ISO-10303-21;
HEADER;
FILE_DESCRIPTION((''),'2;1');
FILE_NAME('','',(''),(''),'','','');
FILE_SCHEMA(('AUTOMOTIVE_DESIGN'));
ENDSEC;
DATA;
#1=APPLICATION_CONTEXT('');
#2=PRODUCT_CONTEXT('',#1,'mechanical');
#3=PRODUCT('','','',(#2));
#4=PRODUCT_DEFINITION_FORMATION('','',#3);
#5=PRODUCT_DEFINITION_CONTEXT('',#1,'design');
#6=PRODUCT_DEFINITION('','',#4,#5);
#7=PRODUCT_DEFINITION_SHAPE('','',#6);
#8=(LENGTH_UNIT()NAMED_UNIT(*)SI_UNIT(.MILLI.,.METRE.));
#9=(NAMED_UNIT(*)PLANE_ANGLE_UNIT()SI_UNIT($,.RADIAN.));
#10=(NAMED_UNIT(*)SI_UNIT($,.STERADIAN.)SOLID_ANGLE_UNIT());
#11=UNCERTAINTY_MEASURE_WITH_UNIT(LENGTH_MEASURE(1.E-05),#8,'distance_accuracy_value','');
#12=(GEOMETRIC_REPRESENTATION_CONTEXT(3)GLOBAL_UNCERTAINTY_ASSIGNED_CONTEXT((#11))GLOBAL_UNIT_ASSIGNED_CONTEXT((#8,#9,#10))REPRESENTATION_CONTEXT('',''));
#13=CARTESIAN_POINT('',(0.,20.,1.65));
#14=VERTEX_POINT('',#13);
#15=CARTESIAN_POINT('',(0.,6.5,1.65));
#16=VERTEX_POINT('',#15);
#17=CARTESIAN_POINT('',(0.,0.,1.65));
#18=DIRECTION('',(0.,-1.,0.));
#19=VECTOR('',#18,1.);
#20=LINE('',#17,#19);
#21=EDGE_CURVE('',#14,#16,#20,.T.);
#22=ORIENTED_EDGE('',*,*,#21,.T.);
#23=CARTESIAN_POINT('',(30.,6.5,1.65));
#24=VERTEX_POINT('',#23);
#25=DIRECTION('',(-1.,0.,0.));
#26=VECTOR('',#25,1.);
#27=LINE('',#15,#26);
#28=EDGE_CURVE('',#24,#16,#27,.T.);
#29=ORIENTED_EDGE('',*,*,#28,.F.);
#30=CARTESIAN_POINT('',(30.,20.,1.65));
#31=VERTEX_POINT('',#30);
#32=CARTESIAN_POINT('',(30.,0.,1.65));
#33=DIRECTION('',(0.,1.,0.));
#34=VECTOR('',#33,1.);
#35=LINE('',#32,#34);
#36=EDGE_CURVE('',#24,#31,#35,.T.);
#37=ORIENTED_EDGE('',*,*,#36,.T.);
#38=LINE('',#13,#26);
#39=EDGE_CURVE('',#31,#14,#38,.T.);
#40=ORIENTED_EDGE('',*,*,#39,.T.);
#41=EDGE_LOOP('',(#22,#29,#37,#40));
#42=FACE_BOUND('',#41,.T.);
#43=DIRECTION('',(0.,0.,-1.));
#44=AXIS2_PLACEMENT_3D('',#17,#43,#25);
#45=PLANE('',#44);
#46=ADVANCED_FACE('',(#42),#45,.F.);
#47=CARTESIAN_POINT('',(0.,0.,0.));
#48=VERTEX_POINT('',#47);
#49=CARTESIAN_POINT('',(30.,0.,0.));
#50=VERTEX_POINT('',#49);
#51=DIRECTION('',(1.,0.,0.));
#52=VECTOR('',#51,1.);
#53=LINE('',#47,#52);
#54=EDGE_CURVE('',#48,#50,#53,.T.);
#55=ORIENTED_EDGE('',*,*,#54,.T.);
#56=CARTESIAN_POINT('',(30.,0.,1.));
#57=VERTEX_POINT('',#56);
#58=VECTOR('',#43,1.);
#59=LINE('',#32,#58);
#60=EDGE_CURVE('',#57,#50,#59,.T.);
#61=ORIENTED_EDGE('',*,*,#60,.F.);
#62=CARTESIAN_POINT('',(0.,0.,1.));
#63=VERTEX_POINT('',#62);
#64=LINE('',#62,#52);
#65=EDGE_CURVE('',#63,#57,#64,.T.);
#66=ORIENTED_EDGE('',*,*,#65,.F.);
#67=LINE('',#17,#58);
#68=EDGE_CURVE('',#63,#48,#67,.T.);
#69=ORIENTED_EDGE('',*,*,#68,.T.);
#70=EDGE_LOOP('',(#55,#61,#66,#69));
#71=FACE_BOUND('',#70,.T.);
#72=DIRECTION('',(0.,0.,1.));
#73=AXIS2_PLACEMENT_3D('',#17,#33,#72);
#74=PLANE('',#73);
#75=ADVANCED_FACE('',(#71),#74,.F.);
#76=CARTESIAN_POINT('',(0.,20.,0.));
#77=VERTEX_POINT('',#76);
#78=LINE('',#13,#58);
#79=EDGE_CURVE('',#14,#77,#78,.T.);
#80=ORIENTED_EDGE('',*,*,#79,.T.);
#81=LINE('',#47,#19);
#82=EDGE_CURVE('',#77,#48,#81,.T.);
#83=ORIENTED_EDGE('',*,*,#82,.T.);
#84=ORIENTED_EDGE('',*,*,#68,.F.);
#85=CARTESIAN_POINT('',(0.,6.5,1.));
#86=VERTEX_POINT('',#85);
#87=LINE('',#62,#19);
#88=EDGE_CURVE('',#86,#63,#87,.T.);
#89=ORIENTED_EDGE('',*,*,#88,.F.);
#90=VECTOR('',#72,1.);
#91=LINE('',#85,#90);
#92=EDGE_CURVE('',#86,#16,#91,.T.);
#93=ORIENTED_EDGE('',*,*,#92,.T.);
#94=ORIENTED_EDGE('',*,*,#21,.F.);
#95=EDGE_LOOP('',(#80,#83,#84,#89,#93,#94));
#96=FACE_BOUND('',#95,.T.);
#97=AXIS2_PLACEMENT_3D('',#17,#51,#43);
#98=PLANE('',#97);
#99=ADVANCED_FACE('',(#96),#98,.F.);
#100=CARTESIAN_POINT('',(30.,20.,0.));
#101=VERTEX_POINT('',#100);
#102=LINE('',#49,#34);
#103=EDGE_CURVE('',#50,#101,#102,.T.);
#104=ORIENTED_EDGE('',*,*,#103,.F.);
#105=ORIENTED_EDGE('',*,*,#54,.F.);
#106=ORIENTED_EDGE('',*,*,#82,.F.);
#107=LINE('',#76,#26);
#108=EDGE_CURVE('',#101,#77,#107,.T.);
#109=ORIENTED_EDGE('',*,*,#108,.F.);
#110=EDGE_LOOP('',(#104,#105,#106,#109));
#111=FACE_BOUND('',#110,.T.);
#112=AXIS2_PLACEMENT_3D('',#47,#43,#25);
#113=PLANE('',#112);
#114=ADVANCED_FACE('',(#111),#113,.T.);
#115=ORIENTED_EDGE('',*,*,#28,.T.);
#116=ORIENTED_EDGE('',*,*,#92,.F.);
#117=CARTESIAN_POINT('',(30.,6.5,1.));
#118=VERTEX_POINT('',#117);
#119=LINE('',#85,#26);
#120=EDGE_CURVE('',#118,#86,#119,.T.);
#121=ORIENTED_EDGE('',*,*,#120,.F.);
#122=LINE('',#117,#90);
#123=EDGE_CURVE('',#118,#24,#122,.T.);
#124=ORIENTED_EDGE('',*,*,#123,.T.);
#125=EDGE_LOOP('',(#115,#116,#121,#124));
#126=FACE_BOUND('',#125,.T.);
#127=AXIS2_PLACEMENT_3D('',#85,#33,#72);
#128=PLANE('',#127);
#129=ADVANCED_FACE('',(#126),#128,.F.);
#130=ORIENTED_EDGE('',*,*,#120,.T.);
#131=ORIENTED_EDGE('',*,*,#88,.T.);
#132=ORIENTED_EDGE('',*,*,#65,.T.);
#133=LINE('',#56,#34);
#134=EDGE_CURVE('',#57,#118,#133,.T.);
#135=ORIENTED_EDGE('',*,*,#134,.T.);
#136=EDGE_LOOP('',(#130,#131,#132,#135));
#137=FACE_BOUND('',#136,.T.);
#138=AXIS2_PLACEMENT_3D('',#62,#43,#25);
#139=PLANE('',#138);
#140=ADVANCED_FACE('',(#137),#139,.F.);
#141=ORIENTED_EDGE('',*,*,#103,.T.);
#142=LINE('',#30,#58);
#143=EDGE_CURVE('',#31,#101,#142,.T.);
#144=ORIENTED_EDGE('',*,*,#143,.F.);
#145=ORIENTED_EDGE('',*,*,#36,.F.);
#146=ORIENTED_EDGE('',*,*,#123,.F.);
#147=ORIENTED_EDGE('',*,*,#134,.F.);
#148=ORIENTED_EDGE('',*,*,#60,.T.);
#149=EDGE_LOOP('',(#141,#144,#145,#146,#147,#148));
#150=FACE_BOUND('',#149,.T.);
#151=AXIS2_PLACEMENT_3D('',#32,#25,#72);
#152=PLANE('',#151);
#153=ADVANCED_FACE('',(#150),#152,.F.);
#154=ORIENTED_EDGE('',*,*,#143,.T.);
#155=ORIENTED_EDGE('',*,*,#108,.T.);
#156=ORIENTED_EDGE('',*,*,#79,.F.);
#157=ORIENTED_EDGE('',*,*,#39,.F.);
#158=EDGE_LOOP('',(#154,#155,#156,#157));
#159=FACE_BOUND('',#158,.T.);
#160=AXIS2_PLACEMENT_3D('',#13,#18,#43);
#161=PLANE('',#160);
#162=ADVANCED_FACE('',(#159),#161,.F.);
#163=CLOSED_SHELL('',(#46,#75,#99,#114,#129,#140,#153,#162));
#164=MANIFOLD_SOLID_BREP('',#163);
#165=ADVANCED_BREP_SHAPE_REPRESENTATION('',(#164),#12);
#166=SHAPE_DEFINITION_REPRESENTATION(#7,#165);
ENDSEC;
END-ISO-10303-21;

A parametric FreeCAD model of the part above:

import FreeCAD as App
import Part
import Sketcher

V = App.Vector


def add_polygon(sketch, points):
    """Adds a closed chain of lines whose ends are joined by coincident constraints."""
    first, n = sketch.GeometryCount, len(points)
    for a, b in zip(points, points[1:] + points[:1]):
        sketch.addGeometry(Part.LineSegment(App.Vector(*a, 0), App.Vector(*b, 0)), False)
    for i in range(n):
        sketch.addConstraint(Sketcher.Constraint("Coincident", first + i, 2, first + (i + 1) % n, 1))

doc = App.newDocument("Part")
body = doc.addObject("PartDesign::Body", "Body")

sketch1 = doc.addObject("Sketcher::SketchObject", "Sketch")
body.addObject(sketch1)
sketch1.AttachmentSupport = (doc.XY_Plane, [""])
sketch1.MapMode = "FlatFace"
add_polygon(sketch1, [(0, 20), (0, 0), (30, 0), (30, 20)])
sketch1.addConstraint([
    Sketcher.Constraint("Vertical", 0),
    Sketcher.Constraint("Horizontal", 1),
    Sketcher.Constraint("Vertical", 2),
    Sketcher.Constraint("Horizontal", 3),
    Sketcher.Constraint("Coincident", 0, 2, -1, 1),
    Sketcher.Constraint("DistanceX", 1, 1, 1, 2, 30.0),
    Sketcher.Constraint("DistanceY", 0, 2, 0, 1, 20.0),
])
pad1 = doc.addObject("PartDesign::Pad", "Pad")
body.addObject(pad1)
pad1.Profile = sketch1
pad1.Length = 1.65

sketch2 = doc.addObject("Sketcher::SketchObject", "Sketch001")
body.addObject(sketch2)
sketch2.AttachmentSupport = (doc.XY_Plane, [""])
sketch2.MapMode = "FlatFace"
sketch2.AttachmentOffset = App.Placement(V(0, 0, 1.65), App.Rotation())
add_polygon(sketch2, [(0, 6.5), (0, 0), (30, 0), (30, 6.5)])
sketch2.addConstraint([
    Sketcher.Constraint("Vertical", 0),
    Sketcher.Constraint("Horizontal", 1),
    Sketcher.Constraint("Vertical", 2),
    Sketcher.Constraint("Horizontal", 3),
    Sketcher.Constraint("Coincident", 0, 2, -1, 1),
    Sketcher.Constraint("DistanceX", 1, 1, 1, 2, 30.0),
    Sketcher.Constraint("DistanceY", 0, 2, 0, 1, 6.5),
])
pocket1 = doc.addObject("PartDesign::Pocket", "Pocket")
body.addObject(pocket1)
pocket1.Profile = sketch2
pocket1.Length = 0.65

doc.recompute()
